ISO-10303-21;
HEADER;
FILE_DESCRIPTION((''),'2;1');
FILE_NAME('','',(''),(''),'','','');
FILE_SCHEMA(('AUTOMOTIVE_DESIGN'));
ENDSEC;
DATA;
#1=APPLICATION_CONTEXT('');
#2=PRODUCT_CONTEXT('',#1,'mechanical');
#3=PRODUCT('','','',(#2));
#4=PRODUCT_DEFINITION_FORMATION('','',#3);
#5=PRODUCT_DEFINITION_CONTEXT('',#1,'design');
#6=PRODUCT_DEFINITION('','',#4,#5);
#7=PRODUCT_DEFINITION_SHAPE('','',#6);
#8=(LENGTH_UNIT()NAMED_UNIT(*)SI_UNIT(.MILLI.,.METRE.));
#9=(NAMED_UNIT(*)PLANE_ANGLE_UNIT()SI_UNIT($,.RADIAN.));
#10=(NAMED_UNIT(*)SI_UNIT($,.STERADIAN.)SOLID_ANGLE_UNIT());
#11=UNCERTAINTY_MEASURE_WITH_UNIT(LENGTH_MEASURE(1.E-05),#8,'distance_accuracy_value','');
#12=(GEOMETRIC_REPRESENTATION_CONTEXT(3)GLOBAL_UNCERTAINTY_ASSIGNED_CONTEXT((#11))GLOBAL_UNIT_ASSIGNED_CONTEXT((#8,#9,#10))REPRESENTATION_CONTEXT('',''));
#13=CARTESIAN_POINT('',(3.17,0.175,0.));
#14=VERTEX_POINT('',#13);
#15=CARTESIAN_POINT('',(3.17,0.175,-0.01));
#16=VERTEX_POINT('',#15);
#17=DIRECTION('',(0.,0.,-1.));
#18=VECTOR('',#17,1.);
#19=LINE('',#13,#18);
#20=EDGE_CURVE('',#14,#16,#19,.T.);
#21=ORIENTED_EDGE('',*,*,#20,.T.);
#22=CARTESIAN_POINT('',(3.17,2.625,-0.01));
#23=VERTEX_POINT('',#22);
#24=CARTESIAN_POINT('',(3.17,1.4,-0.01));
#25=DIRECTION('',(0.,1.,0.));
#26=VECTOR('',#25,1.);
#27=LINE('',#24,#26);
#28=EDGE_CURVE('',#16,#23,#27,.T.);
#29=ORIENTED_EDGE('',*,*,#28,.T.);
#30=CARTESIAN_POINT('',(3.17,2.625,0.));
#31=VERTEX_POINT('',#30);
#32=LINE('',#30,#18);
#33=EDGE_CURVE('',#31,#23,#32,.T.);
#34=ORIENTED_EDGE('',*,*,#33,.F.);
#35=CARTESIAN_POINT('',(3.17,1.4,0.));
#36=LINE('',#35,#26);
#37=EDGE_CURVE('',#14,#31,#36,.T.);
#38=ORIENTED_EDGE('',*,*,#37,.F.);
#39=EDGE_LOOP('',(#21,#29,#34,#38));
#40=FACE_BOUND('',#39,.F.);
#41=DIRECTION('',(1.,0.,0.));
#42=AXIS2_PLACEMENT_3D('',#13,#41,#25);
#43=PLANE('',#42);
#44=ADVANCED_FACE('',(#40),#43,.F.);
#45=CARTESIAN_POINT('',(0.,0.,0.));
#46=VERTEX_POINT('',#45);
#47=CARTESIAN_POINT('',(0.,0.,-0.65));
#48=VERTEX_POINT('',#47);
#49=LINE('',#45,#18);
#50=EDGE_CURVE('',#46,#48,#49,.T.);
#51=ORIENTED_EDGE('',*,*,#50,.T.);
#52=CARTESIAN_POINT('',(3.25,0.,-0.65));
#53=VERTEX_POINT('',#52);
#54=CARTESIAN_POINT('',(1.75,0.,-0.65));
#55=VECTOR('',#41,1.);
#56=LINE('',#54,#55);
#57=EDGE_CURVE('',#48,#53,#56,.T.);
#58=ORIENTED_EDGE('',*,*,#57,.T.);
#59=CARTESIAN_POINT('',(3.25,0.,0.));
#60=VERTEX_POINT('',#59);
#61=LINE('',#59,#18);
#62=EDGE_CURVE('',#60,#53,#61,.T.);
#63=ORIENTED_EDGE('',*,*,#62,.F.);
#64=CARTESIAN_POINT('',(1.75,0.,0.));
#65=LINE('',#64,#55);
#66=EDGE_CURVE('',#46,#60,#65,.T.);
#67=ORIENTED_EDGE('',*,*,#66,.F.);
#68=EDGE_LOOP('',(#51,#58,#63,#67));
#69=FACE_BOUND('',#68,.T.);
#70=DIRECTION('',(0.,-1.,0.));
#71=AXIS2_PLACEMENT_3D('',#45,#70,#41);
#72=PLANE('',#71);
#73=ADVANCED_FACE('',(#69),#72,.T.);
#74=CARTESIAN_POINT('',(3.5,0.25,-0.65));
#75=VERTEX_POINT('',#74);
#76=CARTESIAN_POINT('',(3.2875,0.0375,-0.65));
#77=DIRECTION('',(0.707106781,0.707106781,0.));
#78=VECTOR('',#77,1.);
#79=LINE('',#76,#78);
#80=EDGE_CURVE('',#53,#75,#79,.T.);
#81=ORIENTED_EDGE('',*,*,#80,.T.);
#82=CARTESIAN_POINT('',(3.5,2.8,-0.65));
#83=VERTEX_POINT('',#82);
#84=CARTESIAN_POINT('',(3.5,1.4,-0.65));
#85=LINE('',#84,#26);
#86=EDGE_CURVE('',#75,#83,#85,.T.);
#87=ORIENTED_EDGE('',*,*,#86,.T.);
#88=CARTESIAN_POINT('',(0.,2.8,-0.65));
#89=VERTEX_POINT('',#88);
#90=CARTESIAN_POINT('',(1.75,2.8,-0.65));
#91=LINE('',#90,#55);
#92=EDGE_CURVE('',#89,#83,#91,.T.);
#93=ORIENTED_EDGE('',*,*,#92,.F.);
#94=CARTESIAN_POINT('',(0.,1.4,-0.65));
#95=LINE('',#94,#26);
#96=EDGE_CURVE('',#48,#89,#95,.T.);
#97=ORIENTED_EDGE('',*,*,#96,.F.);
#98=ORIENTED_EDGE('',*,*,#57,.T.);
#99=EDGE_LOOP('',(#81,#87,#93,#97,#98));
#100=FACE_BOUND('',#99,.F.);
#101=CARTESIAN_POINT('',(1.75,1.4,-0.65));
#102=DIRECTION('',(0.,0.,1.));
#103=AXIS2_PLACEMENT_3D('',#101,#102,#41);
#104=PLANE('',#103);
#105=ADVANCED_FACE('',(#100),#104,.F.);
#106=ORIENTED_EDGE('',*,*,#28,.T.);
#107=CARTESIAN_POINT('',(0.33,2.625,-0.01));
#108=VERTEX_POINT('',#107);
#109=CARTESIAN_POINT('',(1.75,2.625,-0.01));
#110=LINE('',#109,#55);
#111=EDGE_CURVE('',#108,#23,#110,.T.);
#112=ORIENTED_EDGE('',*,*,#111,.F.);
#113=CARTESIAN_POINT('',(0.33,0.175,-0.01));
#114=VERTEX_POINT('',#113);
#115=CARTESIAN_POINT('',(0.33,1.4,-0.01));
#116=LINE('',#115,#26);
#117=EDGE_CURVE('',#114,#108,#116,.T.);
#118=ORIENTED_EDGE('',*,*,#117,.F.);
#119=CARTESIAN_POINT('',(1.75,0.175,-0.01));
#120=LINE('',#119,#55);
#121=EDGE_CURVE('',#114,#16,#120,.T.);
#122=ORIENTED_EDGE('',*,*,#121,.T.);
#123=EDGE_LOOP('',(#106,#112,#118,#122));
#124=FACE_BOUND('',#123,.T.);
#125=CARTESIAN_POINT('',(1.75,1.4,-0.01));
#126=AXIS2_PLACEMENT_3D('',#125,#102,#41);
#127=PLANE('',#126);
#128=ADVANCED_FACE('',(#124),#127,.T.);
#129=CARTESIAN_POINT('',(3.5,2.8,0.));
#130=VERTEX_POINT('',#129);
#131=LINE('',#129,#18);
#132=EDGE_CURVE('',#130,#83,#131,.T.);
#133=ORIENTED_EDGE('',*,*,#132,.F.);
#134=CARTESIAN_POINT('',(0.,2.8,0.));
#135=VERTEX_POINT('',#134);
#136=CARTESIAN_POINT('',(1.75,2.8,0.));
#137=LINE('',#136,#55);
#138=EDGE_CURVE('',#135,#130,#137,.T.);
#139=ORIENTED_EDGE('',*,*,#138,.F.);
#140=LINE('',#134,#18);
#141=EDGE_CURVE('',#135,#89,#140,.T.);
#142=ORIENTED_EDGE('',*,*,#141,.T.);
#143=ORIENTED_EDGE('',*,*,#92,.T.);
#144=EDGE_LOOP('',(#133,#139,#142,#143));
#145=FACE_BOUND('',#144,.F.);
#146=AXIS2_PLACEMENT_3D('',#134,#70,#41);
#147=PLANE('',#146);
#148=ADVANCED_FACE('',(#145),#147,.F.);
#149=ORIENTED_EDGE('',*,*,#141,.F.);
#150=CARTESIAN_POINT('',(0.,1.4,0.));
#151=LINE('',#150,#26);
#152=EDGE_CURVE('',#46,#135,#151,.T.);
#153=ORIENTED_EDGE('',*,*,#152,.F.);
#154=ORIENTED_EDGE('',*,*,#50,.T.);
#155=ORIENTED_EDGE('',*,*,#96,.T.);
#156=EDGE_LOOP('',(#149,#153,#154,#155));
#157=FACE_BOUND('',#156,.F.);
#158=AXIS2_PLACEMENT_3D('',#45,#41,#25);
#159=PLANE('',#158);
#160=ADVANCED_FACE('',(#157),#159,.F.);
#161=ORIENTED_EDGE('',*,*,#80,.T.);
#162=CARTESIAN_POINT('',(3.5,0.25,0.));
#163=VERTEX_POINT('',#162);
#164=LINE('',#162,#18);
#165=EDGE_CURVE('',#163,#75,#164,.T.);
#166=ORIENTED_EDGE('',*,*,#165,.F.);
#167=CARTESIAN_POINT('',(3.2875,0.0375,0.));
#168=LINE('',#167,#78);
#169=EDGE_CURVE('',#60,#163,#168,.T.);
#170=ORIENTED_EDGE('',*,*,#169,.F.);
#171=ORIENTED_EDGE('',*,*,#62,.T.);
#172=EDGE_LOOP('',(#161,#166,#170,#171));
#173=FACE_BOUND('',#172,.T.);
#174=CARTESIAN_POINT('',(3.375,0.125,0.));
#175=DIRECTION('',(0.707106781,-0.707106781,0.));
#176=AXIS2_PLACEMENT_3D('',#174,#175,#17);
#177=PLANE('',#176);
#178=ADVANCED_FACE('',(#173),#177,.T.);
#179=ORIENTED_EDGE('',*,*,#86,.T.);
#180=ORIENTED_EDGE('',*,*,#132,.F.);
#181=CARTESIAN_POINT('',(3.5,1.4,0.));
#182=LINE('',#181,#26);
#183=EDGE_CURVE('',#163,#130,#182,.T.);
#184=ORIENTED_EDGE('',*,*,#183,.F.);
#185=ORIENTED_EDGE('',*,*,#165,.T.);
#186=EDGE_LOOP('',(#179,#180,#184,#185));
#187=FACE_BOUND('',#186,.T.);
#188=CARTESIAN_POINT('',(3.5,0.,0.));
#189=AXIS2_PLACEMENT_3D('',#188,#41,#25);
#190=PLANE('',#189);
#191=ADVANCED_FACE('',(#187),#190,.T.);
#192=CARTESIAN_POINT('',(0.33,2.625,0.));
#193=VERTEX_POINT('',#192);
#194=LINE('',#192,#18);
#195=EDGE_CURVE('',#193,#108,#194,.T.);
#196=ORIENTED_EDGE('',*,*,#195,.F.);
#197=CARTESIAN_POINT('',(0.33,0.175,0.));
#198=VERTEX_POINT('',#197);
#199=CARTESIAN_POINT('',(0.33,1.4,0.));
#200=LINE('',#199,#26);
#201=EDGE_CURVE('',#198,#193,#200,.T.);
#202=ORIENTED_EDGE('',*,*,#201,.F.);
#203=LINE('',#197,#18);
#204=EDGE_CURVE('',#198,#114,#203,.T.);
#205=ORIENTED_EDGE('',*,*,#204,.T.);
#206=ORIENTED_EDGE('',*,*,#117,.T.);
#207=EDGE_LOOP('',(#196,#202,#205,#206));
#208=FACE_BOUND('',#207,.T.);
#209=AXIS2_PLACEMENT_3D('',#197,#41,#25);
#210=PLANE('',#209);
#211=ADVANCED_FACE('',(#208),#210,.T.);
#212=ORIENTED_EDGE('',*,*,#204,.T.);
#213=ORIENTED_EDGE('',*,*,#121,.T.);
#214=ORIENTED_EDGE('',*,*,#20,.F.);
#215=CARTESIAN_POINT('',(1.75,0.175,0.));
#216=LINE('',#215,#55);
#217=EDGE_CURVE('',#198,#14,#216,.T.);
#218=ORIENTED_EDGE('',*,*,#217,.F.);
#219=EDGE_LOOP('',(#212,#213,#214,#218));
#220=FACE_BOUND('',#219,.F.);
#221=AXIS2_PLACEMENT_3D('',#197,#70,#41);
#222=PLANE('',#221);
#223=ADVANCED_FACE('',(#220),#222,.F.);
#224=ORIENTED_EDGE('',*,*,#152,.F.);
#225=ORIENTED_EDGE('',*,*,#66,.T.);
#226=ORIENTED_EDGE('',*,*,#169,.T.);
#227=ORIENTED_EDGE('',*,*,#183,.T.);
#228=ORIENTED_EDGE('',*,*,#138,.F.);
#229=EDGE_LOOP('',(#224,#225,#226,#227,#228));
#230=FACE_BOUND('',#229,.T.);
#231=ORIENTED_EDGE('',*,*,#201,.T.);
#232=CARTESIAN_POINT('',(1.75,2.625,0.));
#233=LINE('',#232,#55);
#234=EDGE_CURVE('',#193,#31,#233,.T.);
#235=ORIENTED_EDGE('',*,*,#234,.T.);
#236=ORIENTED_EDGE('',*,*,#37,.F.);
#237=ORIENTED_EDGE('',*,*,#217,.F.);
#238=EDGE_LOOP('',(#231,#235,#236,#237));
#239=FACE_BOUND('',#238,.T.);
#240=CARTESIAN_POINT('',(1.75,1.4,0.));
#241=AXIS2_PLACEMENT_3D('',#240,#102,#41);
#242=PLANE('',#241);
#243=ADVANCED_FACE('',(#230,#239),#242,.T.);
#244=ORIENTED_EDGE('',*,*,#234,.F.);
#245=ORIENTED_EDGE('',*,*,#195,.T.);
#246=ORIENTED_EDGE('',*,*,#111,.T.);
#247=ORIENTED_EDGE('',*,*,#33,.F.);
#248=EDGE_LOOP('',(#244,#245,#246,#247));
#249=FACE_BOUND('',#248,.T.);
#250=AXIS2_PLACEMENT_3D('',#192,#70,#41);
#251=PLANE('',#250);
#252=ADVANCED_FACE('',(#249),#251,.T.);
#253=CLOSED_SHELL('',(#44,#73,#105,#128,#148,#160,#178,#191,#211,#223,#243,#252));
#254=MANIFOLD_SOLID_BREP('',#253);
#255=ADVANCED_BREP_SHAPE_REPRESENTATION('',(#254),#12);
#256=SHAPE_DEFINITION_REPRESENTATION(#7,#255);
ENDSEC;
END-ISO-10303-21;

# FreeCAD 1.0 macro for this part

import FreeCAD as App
import Part
import Sketcher


def edges_at(feature, points):
    """Names of the edges that pass closest to the given points."""
    edges = feature.Shape.Edges
    near = lambda p: min(range(len(edges)), key=lambda i: edges[i].distToShape(Part.Vertex(*p))[0])
    return sorted({f"Edge{near(p) + 1}" for p in points})


def add_polygon(sketch, points):
    """Adds a closed chain of lines whose ends are joined by coincident constraints."""
    first, n = sketch.GeometryCount, len(points)
    for a, b in zip(points, points[1:] + points[:1]):
        sketch.addGeometry(Part.LineSegment(App.Vector(*a, 0), App.Vector(*b, 0)), False)
    for i in range(n):
        sketch.addConstraint(Sketcher.Constraint("Coincident", first + i, 2, first + (i + 1) % n, 1))

doc = App.newDocument("Part")
params = doc.addObject("Spreadsheet::Sheet", "Params")
for row, (alias, value) in enumerate([
    ("sketch1_width", "3.5 mm"),
    ("sketch1_height", "2.8 mm"),
    ("pad1_length", "0.65 mm"),
    ("sketch2_width", "2.84 mm"),
    ("sketch2_height", "2.45 mm"),
    ("pocket1_length", "0.01 mm"),
    ("chamfer_size", "0.25 mm"),
], start=1):
    params.set(f"A{row}", alias)
    params.set(f"B{row}", "=" + value)
    params.setAlias(f"B{row}", alias)

body = doc.addObject("PartDesign::Body", "Body")

sketch1 = body.newObject("Sketcher::SketchObject", "Sketch")
sketch1.AttachmentSupport = (doc.getObject("XY_Plane"), [""])
sketch1.MapMode = "FlatFace"
add_polygon(sketch1, [(0, 2.8), (0, 0), (3.5, 0), (3.5, 2.8)])
sketch1.addConstraint([
    Sketcher.Constraint("Vertical", 0),
    Sketcher.Constraint("Horizontal", 1),
    Sketcher.Constraint("Vertical", 2),
    Sketcher.Constraint("Horizontal", 3),
    Sketcher.Constraint("Coincident", 0, 2, -1, 1),
    Sketcher.Constraint("DistanceX", 1, 1, 1, 2, 3.5),
    Sketcher.Constraint("DistanceY", 0, 2, 0, 1, 2.8),
])
sketch1.setExpression("Constraints[9]", "Params.sketch1_width")
sketch1.setExpression("Constraints[10]", "Params.sketch1_height")
pad1 = body.newObject("PartDesign::Pad", "Pad")
pad1.Profile = sketch1
pad1.setExpression("Length", "Params.pad1_length")
pad1.Reversed = True

sketch2 = body.newObject("Sketcher::SketchObject", "Sketch001")
sketch2.AttachmentSupport = (doc.getObject("XY_Plane"), [""])
sketch2.MapMode = "FlatFace"
add_polygon(sketch2, [(0.3, 2.6), (0.3, 0.2), (3.2, 0.2), (3.2, 2.6)])
sketch2.addConstraint([
    Sketcher.Constraint("Vertical", 0),
    Sketcher.Constraint("Horizontal", 1),
    Sketcher.Constraint("Vertical", 2),
    Sketcher.Constraint("Horizontal", 3),
    Sketcher.Constraint("DistanceX", 1, 1, 1, 2, 2.84),
    Sketcher.Constraint("DistanceY", 0, 2, 0, 1, 2.45),
    Sketcher.Constraint("DistanceX", -1, 1, 0, 2, 0.33),
    Sketcher.Constraint("DistanceY", -1, 1, 0, 2, 0.175),
])
sketch2.setExpression("Constraints[8]", "Params.sketch2_width")
sketch2.setExpression("Constraints[9]", "Params.sketch2_height")
pocket1 = body.newObject("PartDesign::Pocket", "Pocket")
pocket1.Profile = sketch2
pocket1.setExpression("Length", "Params.pocket1_length")
doc.recompute()

chamfer = body.newObject("PartDesign::Chamfer", "Chamfer")
chamfer.Base = (pocket1, edges_at(pocket1, [(3.5, 0, -0.325)]))
chamfer.setExpression("Size", "Params.chamfer_size")

doc.recompute()
